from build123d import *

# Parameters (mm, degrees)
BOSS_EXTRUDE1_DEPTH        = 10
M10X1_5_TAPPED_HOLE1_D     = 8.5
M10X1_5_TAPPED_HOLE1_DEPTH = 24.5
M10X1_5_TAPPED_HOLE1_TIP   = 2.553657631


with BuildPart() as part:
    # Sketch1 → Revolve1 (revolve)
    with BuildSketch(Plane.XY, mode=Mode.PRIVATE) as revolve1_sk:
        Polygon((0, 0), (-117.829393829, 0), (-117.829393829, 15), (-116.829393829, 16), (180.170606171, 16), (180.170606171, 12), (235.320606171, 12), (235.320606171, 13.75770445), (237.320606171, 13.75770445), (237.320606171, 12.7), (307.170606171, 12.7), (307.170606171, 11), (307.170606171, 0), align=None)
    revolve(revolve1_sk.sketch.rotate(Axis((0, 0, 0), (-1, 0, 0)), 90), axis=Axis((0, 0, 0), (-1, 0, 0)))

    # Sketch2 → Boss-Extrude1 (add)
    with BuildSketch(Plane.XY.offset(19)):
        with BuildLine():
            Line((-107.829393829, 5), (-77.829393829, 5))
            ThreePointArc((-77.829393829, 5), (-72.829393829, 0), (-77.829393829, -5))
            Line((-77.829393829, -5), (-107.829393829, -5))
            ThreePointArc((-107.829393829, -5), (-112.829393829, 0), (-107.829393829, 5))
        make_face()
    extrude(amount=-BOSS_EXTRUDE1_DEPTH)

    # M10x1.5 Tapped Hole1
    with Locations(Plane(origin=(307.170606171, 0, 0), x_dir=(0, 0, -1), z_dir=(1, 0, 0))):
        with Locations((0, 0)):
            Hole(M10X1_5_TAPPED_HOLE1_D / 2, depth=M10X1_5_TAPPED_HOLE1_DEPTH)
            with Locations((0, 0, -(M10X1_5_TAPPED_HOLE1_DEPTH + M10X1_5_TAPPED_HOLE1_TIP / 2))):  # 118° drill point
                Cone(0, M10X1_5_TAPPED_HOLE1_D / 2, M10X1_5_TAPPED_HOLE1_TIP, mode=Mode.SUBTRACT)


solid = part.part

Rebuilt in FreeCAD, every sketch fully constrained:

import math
import FreeCAD as App
import Part
import Sketcher
Q = App.Units.Quantity


def add_polygon(sketch, points):
    """Adds a closed chain of lines whose ends are joined by coincident constraints."""
    first, n = sketch.GeometryCount, len(points)
    for a, b in zip(points, points[1:] + points[:1]):
        sketch.addGeometry(Part.LineSegment(App.Vector(*a, 0), App.Vector(*b, 0)), False)
    for i in range(n):
        sketch.addConstraint(Sketcher.Constraint("Coincident", first + i, 2, first + (i + 1) % n, 1))

doc = App.newDocument("Part")
body = doc.addObject("PartDesign::Body", "Body")

# Sketch on XY plane
sketch1 = body.newObject("Sketcher::SketchObject", "Sketch")
sketch1.AttachmentSupport = (doc.getObject("XY_Plane"), [""])
sketch1.MapMode = "FlatFace"
add_polygon(sketch1, [(-117.8, 0), (307.2, 0), (307.2, 12.7), (237.3, 12.7), (237.3, 13.8), (235.3, 13.8), (235.3, 12), (180.2, 12), (180.2, 16), (-116.8, 16), (-117.8, 15)])  # lines 0-10
sketch1.addConstraint([
    Sketcher.Constraint("Horizontal", 0),
    Sketcher.Constraint("Vertical", 1),
    Sketcher.Constraint("Horizontal", 2),
    Sketcher.Constraint("Vertical", 3),
    Sketcher.Constraint("Horizontal", 4),
    Sketcher.Constraint("Vertical", 5),
    Sketcher.Constraint("Horizontal", 6),
    Sketcher.Constraint("Vertical", 7),
    Sketcher.Constraint("Horizontal", 8),
    Sketcher.Constraint("Vertical", 10),
    Sketcher.Constraint("PointOnObject", 0, 2, -1),
    Sketcher.Constraint("DistanceX", 0, 1, 0, 2, Q("425 mm")),
    Sketcher.Constraint("DistanceX", 4, 2, 4, 1, Q("2 mm")),
    Sketcher.Constraint("DistanceX", 8, 2, 8, 1, Q("297 mm")),
    Sketcher.Constraint("DistanceY", 7, 1, 7, 2, Q("4 mm")),
    Sketcher.Constraint("DistanceY", 10, 2, 10, 1, Q("15 mm")),
    Sketcher.Constraint("Angle", 9, Q("-135 deg")),
    Sketcher.Constraint("DistanceY", 1, 1, 1, 2, Q("12.7 mm")),
    Sketcher.Constraint("DistanceY", -1, 1, 5, 2, Q("12 mm")),
    Sketcher.Constraint("DistanceX", 2, 2, 2, 1, Q("69.85 mm")),
    Sketcher.Constraint("DistanceY", 3, 1, 3, 2, Q("1.057704 mm")),
    Sketcher.Constraint("DistanceX", -1, 1, 0, 2, Q("307.170606 mm")),
])
revolution = body.newObject("PartDesign::Revolution", "Revolution")
revolution.Profile = sketch1
revolution.ReferenceAxis = (sketch1, ["H_Axis"])
revolution.Angle = 360

# Sketch on XY plane
sketch2 = body.newObject("Sketcher::SketchObject", "Sketch001")
sketch2.AttachmentSupport = (doc.getObject("XY_Plane"), [""])
sketch2.MapMode = "FlatFace"
sketch2.AttachmentOffset = App.Placement(App.Vector(0, 0, 19), App.Rotation())
sketch2.addGeometry([
    Part.LineSegment(App.Vector(-78, 5, 0), App.Vector(-108, 5, 0)),
    Part.ArcOfCircle(Part.Circle(App.Vector(-108, 0, 0), App.Vector(0, 0, 1), 5), math.radians(90), math.radians(270)),
    Part.LineSegment(App.Vector(-108, -5, 0), App.Vector(-78, -5, 0)),
    Part.ArcOfCircle(Part.Circle(App.Vector(-78, 0, 0), App.Vector(0, 0, 1), 5), math.radians(-90), math.radians(90)),
], False)
sketch2.addConstraint([
    Sketcher.Constraint("Tangent", 0, 2, 1, 1),
    Sketcher.Constraint("Tangent", 1, 2, 2, 1),
    Sketcher.Constraint("Tangent", 2, 2, 3, 1),
    Sketcher.Constraint("Tangent", 3, 2, 0, 1),
    Sketcher.Constraint("Horizontal", 0),
    Sketcher.Constraint("Horizontal", 2),
    Sketcher.Constraint("PointOnObject", 1, 3, -1),
    Sketcher.Constraint("Radius", 1, Q("5 mm")),
    Sketcher.Constraint("DistanceX", 0, 2, 0, 1, Q("30 mm")),
    Sketcher.Constraint("DistanceX", 1, 3, -1, 1, Q("107.829394 mm")),
])
pad1 = body.newObject("PartDesign::Pad", "Pad")
pad1.Profile = sketch2
pad1.Length = 10
pad1.Reversed = True

# Sketch on YZ plane
sketch3 = body.newObject("Sketcher::SketchObject", "Sketch002")
sketch3.AttachmentSupport = (doc.getObject("YZ_Plane"), [""])
sketch3.MapMode = "FlatFace"
sketch3.AttachmentOffset = App.Placement(App.Vector(0, 0, 307.170606), App.Rotation())
sketch3.addGeometry(Part.Circle(App.Vector(0, 0, 0), App.Vector(0, 0, 1), 4.2), False)
sketch3.addConstraint([
    Sketcher.Constraint("Coincident", 0, 3, -1, 1),
    Sketcher.Constraint("Diameter", 0, Q("8.5 mm")),
])
doc.recompute()
hole = body.newObject("PartDesign::Hole", "Hole")
hole.Profile = sketch3
hole.ThreadType = "None"
hole.Diameter = 8.5
hole.DepthType = "Dimension"
hole.Depth = 24.5
hole.DrillPoint = "Angled"
hole.DrillPointAngle = 118

doc.recompute()
